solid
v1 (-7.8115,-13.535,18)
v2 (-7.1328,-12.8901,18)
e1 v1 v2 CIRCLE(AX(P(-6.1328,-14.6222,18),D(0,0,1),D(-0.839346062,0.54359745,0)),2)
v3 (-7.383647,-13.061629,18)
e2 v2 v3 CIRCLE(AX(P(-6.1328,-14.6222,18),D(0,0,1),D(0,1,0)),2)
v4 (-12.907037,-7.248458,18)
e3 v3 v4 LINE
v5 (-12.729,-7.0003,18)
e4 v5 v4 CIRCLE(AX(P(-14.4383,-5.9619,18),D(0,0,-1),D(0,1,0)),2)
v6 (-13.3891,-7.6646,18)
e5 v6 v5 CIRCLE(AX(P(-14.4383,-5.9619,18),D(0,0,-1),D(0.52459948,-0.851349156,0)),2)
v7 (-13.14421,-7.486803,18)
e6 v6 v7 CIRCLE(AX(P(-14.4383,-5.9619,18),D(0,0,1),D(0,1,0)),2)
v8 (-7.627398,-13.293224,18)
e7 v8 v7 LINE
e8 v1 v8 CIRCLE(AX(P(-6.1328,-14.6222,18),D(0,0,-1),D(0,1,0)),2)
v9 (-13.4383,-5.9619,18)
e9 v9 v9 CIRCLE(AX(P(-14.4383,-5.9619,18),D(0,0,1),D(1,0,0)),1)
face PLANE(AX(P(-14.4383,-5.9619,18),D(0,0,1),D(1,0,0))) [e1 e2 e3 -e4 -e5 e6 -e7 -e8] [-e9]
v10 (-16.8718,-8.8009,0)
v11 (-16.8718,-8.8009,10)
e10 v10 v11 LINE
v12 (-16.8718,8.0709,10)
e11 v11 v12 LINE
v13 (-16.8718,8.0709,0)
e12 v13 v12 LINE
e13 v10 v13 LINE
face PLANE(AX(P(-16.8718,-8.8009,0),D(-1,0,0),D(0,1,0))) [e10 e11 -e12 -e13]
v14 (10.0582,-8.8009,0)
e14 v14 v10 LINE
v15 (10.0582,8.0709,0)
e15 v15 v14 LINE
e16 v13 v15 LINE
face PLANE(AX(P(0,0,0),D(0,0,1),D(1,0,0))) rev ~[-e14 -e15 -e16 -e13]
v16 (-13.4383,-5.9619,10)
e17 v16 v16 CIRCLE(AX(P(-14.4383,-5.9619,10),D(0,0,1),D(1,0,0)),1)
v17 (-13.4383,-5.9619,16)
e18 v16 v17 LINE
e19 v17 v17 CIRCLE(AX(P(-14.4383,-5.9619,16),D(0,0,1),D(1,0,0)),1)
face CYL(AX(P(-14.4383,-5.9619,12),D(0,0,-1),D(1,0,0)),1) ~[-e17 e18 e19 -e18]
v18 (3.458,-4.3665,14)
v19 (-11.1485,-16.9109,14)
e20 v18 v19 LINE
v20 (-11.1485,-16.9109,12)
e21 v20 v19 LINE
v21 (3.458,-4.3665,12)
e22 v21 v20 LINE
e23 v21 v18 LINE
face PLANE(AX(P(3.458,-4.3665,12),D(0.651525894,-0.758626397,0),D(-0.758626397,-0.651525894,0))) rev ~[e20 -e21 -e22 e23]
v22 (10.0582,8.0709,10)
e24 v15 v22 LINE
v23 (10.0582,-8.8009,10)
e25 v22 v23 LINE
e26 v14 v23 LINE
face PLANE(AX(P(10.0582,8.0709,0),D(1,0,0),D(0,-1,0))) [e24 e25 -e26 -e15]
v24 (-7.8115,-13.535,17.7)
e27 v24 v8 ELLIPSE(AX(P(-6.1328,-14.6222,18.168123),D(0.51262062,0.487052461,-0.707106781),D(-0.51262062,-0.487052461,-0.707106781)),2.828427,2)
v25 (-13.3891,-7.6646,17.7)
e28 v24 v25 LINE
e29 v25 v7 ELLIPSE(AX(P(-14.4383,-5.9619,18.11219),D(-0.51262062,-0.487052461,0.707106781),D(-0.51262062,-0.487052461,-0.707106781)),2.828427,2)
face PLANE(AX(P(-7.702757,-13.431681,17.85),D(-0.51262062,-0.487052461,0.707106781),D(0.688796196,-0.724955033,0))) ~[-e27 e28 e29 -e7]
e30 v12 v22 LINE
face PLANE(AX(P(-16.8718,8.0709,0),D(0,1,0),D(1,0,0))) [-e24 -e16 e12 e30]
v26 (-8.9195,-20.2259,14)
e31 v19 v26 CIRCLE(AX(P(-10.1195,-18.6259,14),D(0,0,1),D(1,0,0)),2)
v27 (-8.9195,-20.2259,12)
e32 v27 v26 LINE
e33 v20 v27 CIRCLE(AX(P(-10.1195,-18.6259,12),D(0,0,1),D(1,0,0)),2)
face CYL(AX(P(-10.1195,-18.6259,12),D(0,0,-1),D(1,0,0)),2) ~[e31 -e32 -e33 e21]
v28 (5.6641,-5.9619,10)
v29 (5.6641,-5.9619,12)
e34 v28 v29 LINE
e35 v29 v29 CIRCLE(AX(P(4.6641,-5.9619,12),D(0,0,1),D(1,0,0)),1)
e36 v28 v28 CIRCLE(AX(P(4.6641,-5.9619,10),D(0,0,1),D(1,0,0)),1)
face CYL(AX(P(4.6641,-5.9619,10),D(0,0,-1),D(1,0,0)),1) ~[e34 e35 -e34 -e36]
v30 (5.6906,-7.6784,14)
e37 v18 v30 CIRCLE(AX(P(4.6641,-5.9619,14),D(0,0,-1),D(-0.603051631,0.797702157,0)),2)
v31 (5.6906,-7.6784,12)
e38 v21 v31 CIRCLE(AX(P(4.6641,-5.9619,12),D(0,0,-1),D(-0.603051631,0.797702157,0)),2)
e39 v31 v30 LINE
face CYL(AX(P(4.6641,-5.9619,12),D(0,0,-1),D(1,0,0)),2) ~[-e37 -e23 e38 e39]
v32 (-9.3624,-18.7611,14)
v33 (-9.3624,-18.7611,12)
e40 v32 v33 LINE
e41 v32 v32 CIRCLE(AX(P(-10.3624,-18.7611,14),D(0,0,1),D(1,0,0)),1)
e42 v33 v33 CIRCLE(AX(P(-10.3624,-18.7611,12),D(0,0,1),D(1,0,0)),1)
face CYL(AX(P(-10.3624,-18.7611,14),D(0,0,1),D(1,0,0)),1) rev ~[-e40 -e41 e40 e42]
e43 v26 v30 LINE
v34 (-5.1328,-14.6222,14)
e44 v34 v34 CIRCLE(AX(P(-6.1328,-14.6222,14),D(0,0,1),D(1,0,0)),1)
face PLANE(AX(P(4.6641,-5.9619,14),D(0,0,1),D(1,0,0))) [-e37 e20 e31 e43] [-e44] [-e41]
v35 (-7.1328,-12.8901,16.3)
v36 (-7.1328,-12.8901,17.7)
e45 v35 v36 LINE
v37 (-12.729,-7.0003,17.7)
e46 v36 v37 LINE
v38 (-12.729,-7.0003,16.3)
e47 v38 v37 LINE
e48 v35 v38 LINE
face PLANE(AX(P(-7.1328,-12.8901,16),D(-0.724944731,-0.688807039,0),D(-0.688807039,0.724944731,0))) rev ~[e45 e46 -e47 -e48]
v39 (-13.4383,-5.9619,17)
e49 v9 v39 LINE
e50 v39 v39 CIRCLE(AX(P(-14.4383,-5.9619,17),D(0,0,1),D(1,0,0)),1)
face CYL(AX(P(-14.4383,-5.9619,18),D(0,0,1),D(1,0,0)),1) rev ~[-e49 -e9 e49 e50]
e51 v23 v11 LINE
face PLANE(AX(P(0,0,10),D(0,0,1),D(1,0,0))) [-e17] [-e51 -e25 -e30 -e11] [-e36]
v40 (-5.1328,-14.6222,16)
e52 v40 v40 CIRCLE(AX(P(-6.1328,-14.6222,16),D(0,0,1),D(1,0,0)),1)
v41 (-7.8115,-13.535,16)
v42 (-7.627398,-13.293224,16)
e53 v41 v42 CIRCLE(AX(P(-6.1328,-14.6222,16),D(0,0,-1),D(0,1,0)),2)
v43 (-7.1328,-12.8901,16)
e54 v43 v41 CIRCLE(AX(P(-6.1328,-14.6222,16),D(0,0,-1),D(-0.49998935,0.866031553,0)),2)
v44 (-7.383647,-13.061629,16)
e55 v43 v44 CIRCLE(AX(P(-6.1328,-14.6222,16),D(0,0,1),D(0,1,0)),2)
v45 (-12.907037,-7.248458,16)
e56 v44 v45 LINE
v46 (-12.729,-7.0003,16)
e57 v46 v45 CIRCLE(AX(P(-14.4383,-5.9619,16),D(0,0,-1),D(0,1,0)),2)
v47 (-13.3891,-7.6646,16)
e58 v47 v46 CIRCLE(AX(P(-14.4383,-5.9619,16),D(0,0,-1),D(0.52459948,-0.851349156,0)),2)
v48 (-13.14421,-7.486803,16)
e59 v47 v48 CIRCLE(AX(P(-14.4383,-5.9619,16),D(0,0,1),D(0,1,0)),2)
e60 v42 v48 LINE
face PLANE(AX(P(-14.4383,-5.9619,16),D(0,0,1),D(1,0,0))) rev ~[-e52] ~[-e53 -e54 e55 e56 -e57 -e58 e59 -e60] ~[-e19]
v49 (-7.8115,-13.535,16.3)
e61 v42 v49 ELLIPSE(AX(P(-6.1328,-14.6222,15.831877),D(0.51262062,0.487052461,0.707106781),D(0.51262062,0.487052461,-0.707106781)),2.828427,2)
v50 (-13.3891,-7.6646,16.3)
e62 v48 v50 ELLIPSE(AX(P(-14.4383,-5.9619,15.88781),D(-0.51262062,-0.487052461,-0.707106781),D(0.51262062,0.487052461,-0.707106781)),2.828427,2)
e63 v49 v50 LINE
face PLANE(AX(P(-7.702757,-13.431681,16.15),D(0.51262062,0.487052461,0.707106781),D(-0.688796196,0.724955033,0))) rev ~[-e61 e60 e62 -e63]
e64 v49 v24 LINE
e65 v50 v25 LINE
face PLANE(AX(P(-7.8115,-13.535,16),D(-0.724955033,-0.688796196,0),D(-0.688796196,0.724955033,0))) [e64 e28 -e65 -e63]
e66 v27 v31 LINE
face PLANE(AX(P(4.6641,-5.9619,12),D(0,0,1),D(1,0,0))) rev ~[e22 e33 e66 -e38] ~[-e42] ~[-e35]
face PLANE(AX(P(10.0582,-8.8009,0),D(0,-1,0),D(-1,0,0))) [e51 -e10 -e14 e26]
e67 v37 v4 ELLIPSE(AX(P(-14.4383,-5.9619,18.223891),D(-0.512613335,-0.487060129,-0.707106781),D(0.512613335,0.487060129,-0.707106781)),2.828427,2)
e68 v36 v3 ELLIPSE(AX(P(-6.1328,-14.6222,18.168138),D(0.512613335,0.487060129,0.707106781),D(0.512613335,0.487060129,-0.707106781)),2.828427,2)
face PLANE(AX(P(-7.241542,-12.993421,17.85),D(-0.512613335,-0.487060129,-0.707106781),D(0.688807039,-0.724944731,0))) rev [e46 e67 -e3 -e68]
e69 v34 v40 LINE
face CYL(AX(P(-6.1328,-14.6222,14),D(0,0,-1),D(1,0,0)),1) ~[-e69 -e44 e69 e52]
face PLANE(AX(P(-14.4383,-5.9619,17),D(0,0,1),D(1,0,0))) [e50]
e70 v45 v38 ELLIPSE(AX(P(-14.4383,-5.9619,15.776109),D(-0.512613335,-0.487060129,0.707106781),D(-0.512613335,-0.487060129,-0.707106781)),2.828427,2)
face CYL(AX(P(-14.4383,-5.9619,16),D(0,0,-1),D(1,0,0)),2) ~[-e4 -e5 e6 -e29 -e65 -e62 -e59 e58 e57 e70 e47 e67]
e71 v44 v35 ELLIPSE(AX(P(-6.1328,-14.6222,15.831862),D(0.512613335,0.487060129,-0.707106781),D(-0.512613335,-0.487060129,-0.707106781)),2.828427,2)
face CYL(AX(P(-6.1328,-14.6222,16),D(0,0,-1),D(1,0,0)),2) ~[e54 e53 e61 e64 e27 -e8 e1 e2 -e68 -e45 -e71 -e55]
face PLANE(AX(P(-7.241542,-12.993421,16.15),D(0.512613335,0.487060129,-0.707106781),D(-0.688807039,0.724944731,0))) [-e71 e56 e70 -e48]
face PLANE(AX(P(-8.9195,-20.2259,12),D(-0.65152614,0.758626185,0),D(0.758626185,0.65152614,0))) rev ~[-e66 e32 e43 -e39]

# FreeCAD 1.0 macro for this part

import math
import FreeCAD as App
import Part
import Sketcher


def edges_at(feature, points):
    """Names of the edges that pass closest to the given points."""
    edges = feature.Shape.Edges
    near = lambda p: min(range(len(edges)), key=lambda i: edges[i].distToShape(Part.Vertex(*p))[0])
    return sorted({f"Edge{near(p) + 1}" for p in points})


def add_polygon(sketch, points):
    """Adds a closed chain of lines whose ends are joined by coincident constraints."""
    first, n = sketch.GeometryCount, len(points)
    for a, b in zip(points, points[1:] + points[:1]):
        sketch.addGeometry(Part.LineSegment(App.Vector(*a, 0), App.Vector(*b, 0)), False)
    for i in range(n):
        sketch.addConstraint(Sketcher.Constraint("Coincident", first + i, 2, first + (i + 1) % n, 1))

doc = App.newDocument("Part")
params = doc.addObject("Spreadsheet::Sheet", "Params")
for row, (alias, value) in enumerate([
    ("sketch1_width", "26.93 mm"),
    ("pad1_length", "10 mm"),
    ("sketch2_diameter", "2 mm"),
    ("pad2_length", "2 mm"),
    ("sketch3_radius", "2 mm"),
    ("sketch3_width", "1.2 mm"),
    ("pad3_length", "2 mm"),
    ("sketch4_diameter", "2 mm"),
    ("pad4_length", "4 mm"),
    ("sketch5_diameter", "2 mm"),
    ("pad5_length", "2 mm"),
    ("sketch6_diameter", "2 mm"),
    ("pocket1_length", "10 mm"),
    ("sketch7_radius", "2 mm"),
    ("sketch7_width", "1 mm"),
    ("pad6_length", "2 mm"),
    ("sketch8_diameter", "2 mm"),
    ("pocket2_length", "1 mm"),
    ("chamfer_size", "0.3 mm"),
], start=1):
    params.set(f"A{row}", alias)
    params.set(f"B{row}", "=" + value)
    params.setAlias(f"B{row}", alias)

body = doc.addObject("PartDesign::Body", "Body")

sketch1 = body.newObject("Sketcher::SketchObject", "Sketch")
sketch1.AttachmentSupport = (doc.getObject("XY_Plane"), [""])
sketch1.MapMode = "FlatFace"
add_polygon(sketch1, [(-17, -9), (10, -9), (10, 8), (-17, 8)])
sketch1.addConstraint(Sketcher.Constraint("Horizontal", 0))
sketch1.addConstraint(Sketcher.Constraint("Vertical", 1))
sketch1.addConstraint(Sketcher.Constraint("Horizontal", 2))
sketch1.addConstraint(Sketcher.Constraint("Vertical", 3))
sketch1.addConstraint(Sketcher.Constraint("DistanceX", 0, 1, 0, 2, 26.93))
sketch1.addConstraint(Sketcher.Constraint("DistanceY", 1, 1, 1, 2, 16.8718))
sketch1.addConstraint(Sketcher.Constraint("DistanceY", 0, 2, -1, 1, 8.801))
sketch1.addConstraint(Sketcher.Constraint("DistanceX", -1, 1, 0, 2, 10.0582))
sketch1.setExpression("Constraints[8]", "Params.sketch1_width")
pad1 = body.newObject("PartDesign::Pad", "Pad")
pad1.Profile = sketch1
pad1.setExpression("Length", "Params.pad1_length")

sketch2 = body.newObject("Sketcher::SketchObject", "Sketch001")
sketch2.AttachmentSupport = (doc.getObject("XY_Plane"), [""])
sketch2.MapMode = "FlatFace"
sketch2.AttachmentOffset = App.Placement(App.Vector(0, 0, 10), App.Rotation())
sketch2.addGeometry(Part.Circle(App.Vector(4.7, -6, 0), App.Vector(0, 0, 1), 1), False)
sketch2.addGeometry(Part.Circle(App.Vector(-14.4, -6, 0), App.Vector(0, 0, 1), 1), False)
sketch2.addConstraint(Sketcher.Constraint("Equal", 0, 1))
sketch2.addConstraint(Sketcher.Constraint("Horizontal", 0, 3, 1, 3))
sketch2.addConstraint(Sketcher.Constraint("Diameter", 0, 2.0))
sketch2.addConstraint(Sketcher.Constraint("DistanceX", -1, 1, 0, 3, 4.664))
sketch2.addConstraint(Sketcher.Constraint("DistanceY", 0, 3, -1, 1, 5.962))
sketch2.addConstraint(Sketcher.Constraint("DistanceX", 1, 3, -1, 1, 14.4383))
sketch2.setExpression("Constraints[2]", "Params.sketch2_diameter")
pad2 = body.newObject("PartDesign::Pad", "Pad001")
pad2.Profile = sketch2
pad2.setExpression("Length", "Params.pad2_length")

sketch3 = body.newObject("Sketcher::SketchObject", "Sketch002")
sketch3.AttachmentSupport = (doc.getObject("XY_Plane"), [""])
sketch3.MapMode = "FlatFace"
sketch3.AttachmentOffset = App.Placement(App.Vector(0, 0, 12), App.Rotation())
sketch3.addGeometry(Part.ArcOfCircle(Part.Circle(App.Vector(4.7, -6, 0), App.Vector(0, 0, 1), 2), math.radians(-59), math.radians(127)), False)
sketch3.addGeometry(Part.LineSegment(App.Vector(3.5, -4.4, 0), App.Vector(-11.1, -16.9, 0)), False)
sketch3.addGeometry(Part.ArcOfCircle(Part.Circle(App.Vector(-10.1, -18.6, 0), App.Vector(0, 0, 1), 2), math.radians(121), math.radians(307)), False)
sketch3.addGeometry(Part.LineSegment(App.Vector(-8.9, -20.2, 0), App.Vector(5.7, -7.7, 0)), False)
sketch3.addConstraint(Sketcher.Constraint("Coincident", 0, 2, 1, 1))
sketch3.addConstraint(Sketcher.Constraint("Coincident", 1, 2, 2, 1))
sketch3.addConstraint(Sketcher.Constraint("Coincident", 2, 2, 3, 1))
sketch3.addConstraint(Sketcher.Constraint("Coincident", 3, 2, 0, 1))
sketch3.addConstraint(Sketcher.Constraint("Equal", 0, 2))
sketch3.addConstraint(Sketcher.Constraint("Parallel", 1, 3))
sketch3.addConstraint(Sketcher.Constraint("Radius", 0, 2.0))
sketch3.addConstraint(Sketcher.Constraint("DistanceX", 2, 3, 2, 2, 1.2))
sketch3.addConstraint(Sketcher.Constraint("DistanceX", 2, 3, 3, 2, 15.81))
sketch3.addConstraint(Sketcher.Constraint("DistanceX", -1, 1, 0, 3, 4.664))
sketch3.addConstraint(Sketcher.Constraint("DistanceY", 0, 3, -1, 1, 5.962))
sketch3.addConstraint(Sketcher.Constraint("DistanceY", 2, 3, -1, 1, 18.626))
sketch3.addConstraint(Sketcher.Constraint("DistanceX", -1, 1, 0, 2, 3.458))
sketch3.addConstraint(Sketcher.Constraint("DistanceY", 1, 2, -1, 1, 16.911))
sketch3.setExpression("Constraints[6]", "Params.sketch3_radius")
sketch3.setExpression("Constraints[7]", "Params.sketch3_width")
pad3 = body.newObject("PartDesign::Pad", "Pad002")
pad3.Profile = sketch3
pad3.setExpression("Length", "Params.pad3_length")

sketch4 = body.newObject("Sketcher::SketchObject", "Sketch003")
sketch4.AttachmentSupport = (doc.getObject("XY_Plane"), [""])
sketch4.MapMode = "FlatFace"
sketch4.AttachmentOffset = App.Placement(App.Vector(0, 0, 12), App.Rotation())
sketch4.addGeometry(Part.Circle(App.Vector(-14.4, -6, 0), App.Vector(0, 0, 1), 1), False)
sketch4.addConstraint(Sketcher.Constraint("Diameter", 0, 2.0))
sketch4.addConstraint(Sketcher.Constraint("DistanceY", 0, 3, -1, 1, 5.962))
sketch4.addConstraint(Sketcher.Constraint("DistanceX", 0, 3, -1, 1, 14.4383))
sketch4.setExpression("Constraints[0]", "Params.sketch4_diameter")
pad4 = body.newObject("PartDesign::Pad", "Pad003")
pad4.Profile = sketch4
pad4.setExpression("Length", "Params.pad4_length")

sketch5 = body.newObject("Sketcher::SketchObject", "Sketch004")
sketch5.AttachmentSupport = (doc.getObject("XY_Plane"), [""])
sketch5.MapMode = "FlatFace"
sketch5.AttachmentOffset = App.Placement(App.Vector(0, 0, 14), App.Rotation())
sketch5.addGeometry(Part.Circle(App.Vector(-6.1, -14.6, 0), App.Vector(0, 0, 1), 1), False)
sketch5.addConstraint(Sketcher.Constraint("Diameter", 0, 2.0))
sketch5.addConstraint(Sketcher.Constraint("DistanceX", 0, 3, -1, 1, 6.1328))
sketch5.addConstraint(Sketcher.Constraint("DistanceY", 0, 3, -1, 1, 14.6222))
sketch5.setExpression("Constraints[0]", "Params.sketch5_diameter")
pad5 = body.newObject("PartDesign::Pad", "Pad004")
pad5.Profile = sketch5
pad5.setExpression("Length", "Params.pad5_length")

sketch6 = body.newObject("Sketcher::SketchObject", "Sketch005")
sketch6.AttachmentSupport = (doc.getObject("XY_Plane"), [""])
sketch6.MapMode = "FlatFace"
sketch6.AttachmentOffset = App.Placement(App.Vector(0, 0, 14), App.Rotation())
sketch6.addGeometry(Part.Circle(App.Vector(-10.4, -18.8, 0), App.Vector(0, 0, 1), 1), False)
sketch6.addConstraint(Sketcher.Constraint("Diameter", 0, 2.0))
sketch6.addConstraint(Sketcher.Constraint("DistanceY", 0, 3, -1, 1, 18.761))
sketch6.addConstraint(Sketcher.Constraint("DistanceX", 0, 3, -1, 1, 10.3624))
sketch6.setExpression("Constraints[0]", "Params.sketch6_diameter")
pocket1 = body.newObject("PartDesign::Pocket", "Pocket")
pocket1.Profile = sketch6
pocket1.setExpression("Length", "Params.pocket1_length")

sketch7 = body.newObject("Sketcher::SketchObject", "Sketch006")
sketch7.AttachmentSupport = (doc.getObject("XY_Plane"), [""])
sketch7.MapMode = "FlatFace"
sketch7.AttachmentOffset = App.Placement(App.Vector(0, 0, 16), App.Rotation())
sketch7.addGeometry(Part.ArcOfCircle(Part.Circle(App.Vector(-14.4, -6, 0), App.Vector(0, 0, 1), 2), math.radians(-31), math.radians(302)), False)
sketch7.addGeometry(Part.LineSegment(App.Vector(-13.4, -7.7, 0), App.Vector(-7.8, -13.5, 0)), False)
sketch7.addGeometry(Part.ArcOfCircle(Part.Circle(App.Vector(-6.1, -14.6, 0), App.Vector(0, 0, 1), 2), math.radians(147), math.radians(480)), False)
sketch7.addGeometry(Part.LineSegment(App.Vector(-7.1, -12.9, 0), App.Vector(-12.7, -7, 0)), False)
sketch7.addConstraint(Sketcher.Constraint("Coincident", 0, 2, 1, 1))
sketch7.addConstraint(Sketcher.Constraint("Coincident", 1, 2, 2, 1))
sketch7.addConstraint(Sketcher.Constraint("Coincident", 2, 2, 3, 1))
sketch7.addConstraint(Sketcher.Constraint("Coincident", 3, 2, 0, 1))
sketch7.addConstraint(Sketcher.Constraint("Equal", 0, 2))
sketch7.addConstraint(Sketcher.Constraint("Parallel", 1, 3))
sketch7.addConstraint(Sketcher.Constraint("Radius", 0, 2.0))
sketch7.addConstraint(Sketcher.Constraint("DistanceX", 2, 2, 2, 3, 1.0))
sketch7.addConstraint(Sketcher.Constraint("DistanceX", 0, 2, 3, 2, 0.66))
sketch7.addConstraint(Sketcher.Constraint("DistanceY", 0, 3, -1, 1, 5.962))
sketch7.addConstraint(Sketcher.Constraint("DistanceX", 0, 2, -1, 1, 13.389))
sketch7.addConstraint(Sketcher.Constraint("DistanceY", 1, 2, -1, 1, 13.535))
sketch7.addConstraint(Sketcher.Constraint("DistanceY", 2, 3, 3, 2, 7.622))
sketch7.addConstraint(Sketcher.Constraint("Distance", 1, 8.0976))
sketch7.setExpression("Constraints[6]", "Params.sketch7_radius")
sketch7.setExpression("Constraints[7]", "Params.sketch7_width")
pad6 = body.newObject("PartDesign::Pad", "Pad005")
pad6.Profile = sketch7
pad6.setExpression("Length", "Params.pad6_length")

sketch8 = body.newObject("Sketcher::SketchObject", "Sketch007")
sketch8.AttachmentSupport = (doc.getObject("XY_Plane"), [""])
sketch8.MapMode = "FlatFace"
sketch8.AttachmentOffset = App.Placement(App.Vector(0, 0, 18), App.Rotation())
sketch8.addGeometry(Part.Circle(App.Vector(-14.4, -6, 0), App.Vector(0, 0, 1), 1), False)
sketch8.addConstraint(Sketcher.Constraint("Diameter", 0, 2.0))
sketch8.addConstraint(Sketcher.Constraint("DistanceY", 0, 3, -1, 1, 5.962))
sketch8.addConstraint(Sketcher.Constraint("DistanceX", 0, 3, -1, 1, 14.4383))
sketch8.setExpression("Constraints[0]", "Params.sketch8_diameter")
pocket2 = body.newObject("PartDesign::Pocket", "Pocket001")
pocket2.Profile = sketch8
pocket2.setExpression("Length", "Params.pocket2_length")
doc.recompute()

chamfer = body.newObject("PartDesign::Chamfer", "Chamfer")
chamfer.Base = (pocket2, edges_at(pocket2, [
    (-9.931, -9.945, 18),
    (-9.931, -9.945, 16),
    (-10.6, -10.6, 16),
    (-10.6, -10.6, 18),
]))
chamfer.setExpression("Size", "Params.chamfer_size")

doc.recompute()
